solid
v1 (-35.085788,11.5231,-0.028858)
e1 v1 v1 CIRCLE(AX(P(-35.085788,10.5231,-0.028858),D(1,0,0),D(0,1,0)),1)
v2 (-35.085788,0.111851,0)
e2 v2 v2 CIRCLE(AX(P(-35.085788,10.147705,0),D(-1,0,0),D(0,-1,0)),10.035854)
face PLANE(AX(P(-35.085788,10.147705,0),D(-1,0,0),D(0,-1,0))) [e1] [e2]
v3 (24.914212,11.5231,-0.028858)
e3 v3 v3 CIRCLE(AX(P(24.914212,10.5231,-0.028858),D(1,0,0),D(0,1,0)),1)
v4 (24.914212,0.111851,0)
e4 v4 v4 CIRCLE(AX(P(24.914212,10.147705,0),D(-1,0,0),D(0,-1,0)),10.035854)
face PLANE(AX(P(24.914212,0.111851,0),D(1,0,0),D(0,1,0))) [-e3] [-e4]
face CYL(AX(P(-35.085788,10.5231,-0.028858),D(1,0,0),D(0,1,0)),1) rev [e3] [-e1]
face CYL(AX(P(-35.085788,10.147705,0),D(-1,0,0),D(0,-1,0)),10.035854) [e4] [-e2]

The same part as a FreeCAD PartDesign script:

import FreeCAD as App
import Part
import Sketcher
Q = App.Units.Quantity

doc = App.newDocument("Part")
body = doc.addObject("PartDesign::Body", "Body")

sketch1 = body.newObject("Sketcher::SketchObject", "Sketch")
sketch1.AttachmentSupport = (doc.getObject("XY_Plane"), [""])
sketch1.MapMode = "FlatFace"
sketch1.addGeometry([
    Part.LineSegment(App.Vector(-35, 10, 0), App.Vector(-35, 0, 0)),
    Part.LineSegment(App.Vector(-35, 0, 0), App.Vector(25, 0, 0)),
    Part.LineSegment(App.Vector(25, 0, 0), App.Vector(25, 10, 0)),
    Part.LineSegment(App.Vector(25, 10, 0), App.Vector(-35, 10, 0)),
], False)
sketch1.addGeometry(Part.LineSegment(App.Vector(-35, 10, 0), App.Vector(25, 10, 0)), True)
sketch1.addConstraint([
    Sketcher.Constraint("Coincident", 0, 2, 1, 1),
    Sketcher.Constraint("Coincident", 1, 2, 2, 1),
    Sketcher.Constraint("Coincident", 2, 2, 3, 1),
    Sketcher.Constraint("Coincident", 3, 2, 0, 1),
    Sketcher.Constraint("Vertical", 0),
    Sketcher.Constraint("Horizontal", 1),
    Sketcher.Constraint("Vertical", 2),
    Sketcher.Constraint("Horizontal", 3),
    Sketcher.Constraint("Horizontal", 4),
    Sketcher.Constraint("Coincident", 4, 1, 3, 2),
    Sketcher.Constraint("Vertical", 1, 2, 4, 2),
    Sketcher.Constraint("DistanceX", 1, 1, 1, 2, Q("60 mm")),
    Sketcher.Constraint("DistanceY", 0, 2, 0, 1, Q("10.035854 mm")),
    Sketcher.Constraint("DistanceX", 0, 2, -1, 1, Q("35.085788 mm")),
    Sketcher.Constraint("DistanceY", -1, 1, 0, 2, Q("0.111851 mm")),
])
revolution = body.newObject("PartDesign::Revolution", "Revolution")
revolution.Profile = sketch1
revolution.ReferenceAxis = (sketch1, ["Axis0"])
revolution.Angle = 360

sketch2 = body.newObject("Sketcher::SketchObject", "Sketch001")
sketch2.AttachmentSupport = (doc.getObject("YZ_Plane"), [""])
sketch2.MapMode = "FlatFace"
sketch2.AttachmentOffset = App.Placement(App.Vector(0, 0, 24.914212), App.Rotation())
sketch2.addGeometry(Part.Circle(App.Vector(10.5, 0, 0), App.Vector(0, 0, 1), 1), False)
sketch2.addConstraint([
    Sketcher.Constraint("Diameter", 0, Q("2 mm")),
    Sketcher.Constraint("DistanceX", -1, 1, 0, 3, Q("10.5231 mm")),
    Sketcher.Constraint("DistanceY", 0, 3, -1, 1, Q("0.028858 mm")),
])
pocket1 = body.newObject("PartDesign::Pocket", "Pocket")
pocket1.Profile = sketch2
pocket1.Type = "ThroughAll"
pocket1.Midplane = True

doc.recompute()
